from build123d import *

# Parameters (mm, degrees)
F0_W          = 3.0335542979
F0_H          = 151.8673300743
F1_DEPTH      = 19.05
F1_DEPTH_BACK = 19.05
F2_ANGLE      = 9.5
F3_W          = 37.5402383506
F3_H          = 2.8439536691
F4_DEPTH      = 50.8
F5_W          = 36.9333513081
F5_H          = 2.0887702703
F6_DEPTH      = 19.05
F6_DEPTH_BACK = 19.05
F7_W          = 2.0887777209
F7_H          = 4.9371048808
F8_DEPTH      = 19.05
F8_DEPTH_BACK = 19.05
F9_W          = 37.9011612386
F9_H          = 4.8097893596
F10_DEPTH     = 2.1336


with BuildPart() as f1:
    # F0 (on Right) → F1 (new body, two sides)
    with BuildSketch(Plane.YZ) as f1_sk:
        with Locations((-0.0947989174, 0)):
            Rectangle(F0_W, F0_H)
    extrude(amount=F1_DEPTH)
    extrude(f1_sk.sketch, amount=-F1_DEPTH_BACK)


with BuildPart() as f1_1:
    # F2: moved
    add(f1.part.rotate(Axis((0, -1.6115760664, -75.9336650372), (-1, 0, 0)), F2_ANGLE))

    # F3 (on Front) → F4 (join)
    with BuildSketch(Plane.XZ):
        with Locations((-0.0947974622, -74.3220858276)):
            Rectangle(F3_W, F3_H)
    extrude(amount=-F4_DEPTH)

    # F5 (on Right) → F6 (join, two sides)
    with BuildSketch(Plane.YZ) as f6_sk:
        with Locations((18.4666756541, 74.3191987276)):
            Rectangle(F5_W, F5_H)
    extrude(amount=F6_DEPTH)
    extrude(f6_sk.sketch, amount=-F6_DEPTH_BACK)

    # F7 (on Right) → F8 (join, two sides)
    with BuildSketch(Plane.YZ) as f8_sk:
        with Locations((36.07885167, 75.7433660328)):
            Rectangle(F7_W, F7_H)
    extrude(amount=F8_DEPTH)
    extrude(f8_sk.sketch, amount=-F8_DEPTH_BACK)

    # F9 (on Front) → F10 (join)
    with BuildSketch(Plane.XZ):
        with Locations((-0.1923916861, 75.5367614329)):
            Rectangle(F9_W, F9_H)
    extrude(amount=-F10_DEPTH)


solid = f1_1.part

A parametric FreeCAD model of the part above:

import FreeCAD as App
import Part
import Sketcher

V = App.Vector
Q = App.Units.Quantity


def add_polygon(sketch, points):
    """Adds a closed chain of lines whose ends are joined by coincident constraints."""
    first, n = sketch.GeometryCount, len(points)
    for a, b in zip(points, points[1:] + points[:1]):
        sketch.addGeometry(Part.LineSegment(App.Vector(*a, 0), App.Vector(*b, 0)), False)
    for i in range(n):
        sketch.addConstraint(Sketcher.Constraint("Coincident", first + i, 2, first + (i + 1) % n, 1))

doc = App.newDocument("Part")
body = doc.addObject("PartDesign::Body", "Body")

# Sketch on YZ plane
sketch1 = body.newObject("Sketcher::SketchObject", "Sketch")
sketch1.AttachmentSupport = (doc.getObject("YZ_Plane"), [""])
sketch1.MapMode = "FlatFace"
add_polygon(sketch1, [(-1.6, 75.9), (-1.6, -75.9), (1.4, -75.9), (1.4, 75.9)])  # lines 0-3
sketch1.addConstraint(Sketcher.Constraint("Vertical", 0))
sketch1.addConstraint(Sketcher.Constraint("Horizontal", 1))
sketch1.addConstraint(Sketcher.Constraint("Vertical", 2))
sketch1.addConstraint(Sketcher.Constraint("Horizontal", 3))
sketch1.addConstraint(Sketcher.Constraint("DistanceY", 0, 2, 0, 1, 151.86733))
sketch1.addConstraint(Sketcher.Constraint("DistanceX", 1, 1, 1, 2, 3.033554))
sketch1.addConstraint(Sketcher.Constraint("DistanceX", -1, 1, 1, 2, 1.421978))
sketch1.addConstraint(Sketcher.Constraint("DistanceY", 0, 2, -1, 1, 75.933665))
pad1 = body.newObject("PartDesign::Pad", "Pad")
pad1.Profile = sketch1
pad1.Type = "TwoLengths"
pad1.Length = Q("0.75 in")
pad1.Length2 = Q("0.75 in")
body2 = doc.addObject("PartDesign::Body", "Body001")
doc.recompute()

body.Placement = App.Placement(V(0, 12.510568, -1.307371), App.Rotation(V(-1, 0, 0), 9.5))
boolean = body2.newObject("PartDesign::Boolean", "Boolean")
boolean.Type = "Fuse"
boolean.addObjects([body])

# Sketch on XZ plane
sketch2 = body2.newObject("Sketcher::SketchObject", "Sketch001")
sketch2.AttachmentSupport = (doc.getObject("XZ_Plane001"), [""])
sketch2.MapMode = "FlatFace"
add_polygon(sketch2, [(-18.9, -72.9), (-18.9, -75.7), (18.7, -75.7), (18.7, -72.9)])  # lines 0-3
sketch2.addConstraint(Sketcher.Constraint("Vertical", 0))
sketch2.addConstraint(Sketcher.Constraint("Horizontal", 1))
sketch2.addConstraint(Sketcher.Constraint("Vertical", 2))
sketch2.addConstraint(Sketcher.Constraint("Horizontal", 3))
sketch2.addConstraint(Sketcher.Constraint("DistanceX", 1, 1, 1, 2, 37.540238))
sketch2.addConstraint(Sketcher.Constraint("DistanceY", 0, 2, 0, 1, 2.843954))
sketch2.addConstraint(Sketcher.Constraint("DistanceX", -1, 1, 1, 2, 18.675322))
sketch2.addConstraint(Sketcher.Constraint("DistanceY", 2, 2, -1, 1, 72.900109))
pad2 = body2.newObject("PartDesign::Pad", "Pad001")
pad2.Profile = sketch2
pad2.Length = Q("2 in")
pad2.Reversed = True

# Sketch on YZ plane
sketch3 = body2.newObject("Sketcher::SketchObject", "Sketch002")
sketch3.AttachmentSupport = (doc.getObject("YZ_Plane001"), [""])
sketch3.MapMode = "FlatFace"
add_polygon(sketch3, [(0, 75.4), (0, 73.3), (36.9, 73.3), (36.9, 75.4)])  # lines 0-3
sketch3.addConstraint(Sketcher.Constraint("Vertical", 0))
sketch3.addConstraint(Sketcher.Constraint("Horizontal", 1))
sketch3.addConstraint(Sketcher.Constraint("Vertical", 2))
sketch3.addConstraint(Sketcher.Constraint("Horizontal", 3))
sketch3.addConstraint(Sketcher.Constraint("PointOnObject", 0, 2, -2))
sketch3.addConstraint(Sketcher.Constraint("DistanceX", 1, 1, 1, 2, 36.933351))
sketch3.addConstraint(Sketcher.Constraint("DistanceY", 0, 2, 0, 1, 2.08877))
sketch3.addConstraint(Sketcher.Constraint("DistanceY", -1, 1, 0, 2, 73.274814))
pad3 = body2.newObject("PartDesign::Pad", "Pad002")
pad3.Profile = sketch3
pad3.Type = "TwoLengths"
pad3.Length = Q("0.75 in")
pad3.Length2 = Q("0.75 in")

# Sketch on YZ plane
sketch4 = body2.newObject("Sketcher::SketchObject", "Sketch003")
sketch4.AttachmentSupport = (doc.getObject("YZ_Plane001"), [""])
sketch4.MapMode = "FlatFace"
add_polygon(sketch4, [(35, 78.2), (35, 73.3), (37.1, 73.3), (37.1, 78.2)])  # lines 0-3
sketch4.addConstraint(Sketcher.Constraint("Vertical", 0))
sketch4.addConstraint(Sketcher.Constraint("Horizontal", 1))
sketch4.addConstraint(Sketcher.Constraint("Vertical", 2))
sketch4.addConstraint(Sketcher.Constraint("Horizontal", 3))
sketch4.addConstraint(Sketcher.Constraint("DistanceX", 1, 1, 1, 2, 2.088778))
sketch4.addConstraint(Sketcher.Constraint("DistanceY", 0, 2, 0, 1, 4.937105))
sketch4.addConstraint(Sketcher.Constraint("DistanceX", -1, 1, 1, 2, 37.123241))
sketch4.addConstraint(Sketcher.Constraint("DistanceY", -1, 1, 2, 2, 78.211918))
pad4 = body2.newObject("PartDesign::Pad", "Pad003")
pad4.Profile = sketch4
pad4.Type = "TwoLengths"
pad4.Length = Q("0.75 in")
pad4.Length2 = Q("0.75 in")

# Sketch on XZ plane
sketch5 = body2.newObject("Sketcher::SketchObject", "Sketch004")
sketch5.AttachmentSupport = (doc.getObject("XZ_Plane001"), [""])
sketch5.MapMode = "FlatFace"
add_polygon(sketch5, [(-19.1, 77.9), (-19.1, 73.1), (18.8, 73.1), (18.8, 77.9)])  # lines 0-3
sketch5.addConstraint(Sketcher.Constraint("Vertical", 0))
sketch5.addConstraint(Sketcher.Constraint("Horizontal", 1))
sketch5.addConstraint(Sketcher.Constraint("Vertical", 2))
sketch5.addConstraint(Sketcher.Constraint("Horizontal", 3))
sketch5.addConstraint(Sketcher.Constraint("DistanceX", 1, 1, 1, 2, 37.901161))
sketch5.addConstraint(Sketcher.Constraint("DistanceY", 0, 2, 0, 1, 4.809789))
sketch5.addConstraint(Sketcher.Constraint("DistanceX", -1, 1, 1, 2, 18.758189))
sketch5.addConstraint(Sketcher.Constraint("DistanceY", -1, 1, 0, 2, 73.131867))
pad5 = body2.newObject("PartDesign::Pad", "Pad004")
pad5.Profile = sketch5
pad5.Length = Q("0.084 in")
pad5.Reversed = True

doc.recompute()
